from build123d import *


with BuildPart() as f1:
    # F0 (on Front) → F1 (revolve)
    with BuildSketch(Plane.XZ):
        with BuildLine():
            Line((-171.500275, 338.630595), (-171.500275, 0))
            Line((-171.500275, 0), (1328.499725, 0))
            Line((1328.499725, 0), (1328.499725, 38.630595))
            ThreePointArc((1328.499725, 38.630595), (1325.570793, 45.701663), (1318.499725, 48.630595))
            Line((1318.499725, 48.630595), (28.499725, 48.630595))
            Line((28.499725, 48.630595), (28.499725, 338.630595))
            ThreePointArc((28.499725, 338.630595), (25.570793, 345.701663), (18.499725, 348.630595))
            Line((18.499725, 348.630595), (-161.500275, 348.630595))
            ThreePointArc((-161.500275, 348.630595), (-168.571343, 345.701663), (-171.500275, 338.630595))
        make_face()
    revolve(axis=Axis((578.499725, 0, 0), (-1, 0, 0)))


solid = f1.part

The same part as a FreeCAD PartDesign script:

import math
import FreeCAD as App
import Part
import Sketcher

V = App.Vector
Q = App.Units.Quantity

doc = App.newDocument("Part")
body = doc.addObject("PartDesign::Body", "Body")

# Sketch on XZ plane
sketch1 = body.newObject("Sketcher::SketchObject", "Sketch")
sketch1.AttachmentSupport = (doc.getObject("XZ_Plane"), [""])
sketch1.MapMode = "FlatFace"
sketch1.addGeometry([
    Part.LineSegment(V(-171.500275, 338.630595, 0), V(-171.500275, 0, 0)),  # 0
    Part.LineSegment(V(-171.500275, 0, 0), V(1328.499725, 0, 0)),  # 1
    Part.LineSegment(V(1328.499725, 0, 0), V(1328.499725, 38.630595, 0)),  # 2
    Part.ArcOfCircle(Part.Circle(V(1318.499726, 38.630596, 0), V(0, 0, 1), 9.999999), math.radians(-0.000004), math.radians(90.000004)),  # 3
    Part.LineSegment(V(1318.499725, 48.630595, 0), V(28.499725, 48.630595, 0)),  # 4
    Part.LineSegment(V(28.499725, 48.630595, 0), V(28.499725, 338.630595, 0)),  # 5
    Part.ArcOfCircle(Part.Circle(V(18.499726, 338.630596, 0), V(0, 0, 1), 9.999999), math.radians(-0.000004), math.radians(90.000004)),  # 6
    Part.LineSegment(V(18.499725, 348.630595, 0), V(-161.500275, 348.630595, 0)),  # 7
    Part.ArcOfCircle(Part.Circle(V(-161.500276, 338.630596, 0), V(0, 0, 1), 9.999999), math.radians(89.999996), math.radians(180.000004)),  # 8
], False)
sketch1.addConstraint([
    Sketcher.Constraint("Coincident", 0, 2, 1, 1),
    Sketcher.Constraint("Coincident", 1, 2, 2, 1),
    Sketcher.Constraint("Tangent", 2, 2, 3, 1),
    Sketcher.Constraint("Tangent", 3, 2, 4, 1),
    Sketcher.Constraint("Coincident", 4, 2, 5, 1),
    Sketcher.Constraint("Tangent", 5, 2, 6, 1),
    Sketcher.Constraint("Tangent", 6, 2, 7, 1),
    Sketcher.Constraint("Tangent", 7, 2, 8, 1),
    Sketcher.Constraint("Tangent", 8, 2, 0, 1),
    Sketcher.Constraint("Vertical", 0),
    Sketcher.Constraint("Horizontal", 1),
    Sketcher.Constraint("Vertical", 2),
    Sketcher.Constraint("Horizontal", 4),
    Sketcher.Constraint("Vertical", 5),
    Sketcher.Constraint("Horizontal", 7),
    Sketcher.Constraint("Equal", 3, 6),
    Sketcher.Constraint("Equal", 6, 8),
    Sketcher.Constraint("PointOnObject", 0, 2, -1),
    Sketcher.Constraint("Radius", 3, Q("9.999999 mm")),
    Sketcher.Constraint("DistanceX", 1, 1, 1, 2, Q("1500 mm")),
    Sketcher.Constraint("DistanceX", 4, 2, 4, 1, Q("1290 mm")),
    Sketcher.Constraint("DistanceY", 5, 1, 5, 2, Q("290 mm")),
    Sketcher.Constraint("DistanceY", 0, 2, 0, 1, Q("338.630595 mm")),
    Sketcher.Constraint("DistanceX", -1, 1, 3, 3, Q("1318.499726 mm")),
])
revolution = body.newObject("PartDesign::Revolution", "Revolution")
revolution.Profile = sketch1
revolution.ReferenceAxis = (sketch1, ["H_Axis"])
revolution.Angle = 360

doc.recompute()
